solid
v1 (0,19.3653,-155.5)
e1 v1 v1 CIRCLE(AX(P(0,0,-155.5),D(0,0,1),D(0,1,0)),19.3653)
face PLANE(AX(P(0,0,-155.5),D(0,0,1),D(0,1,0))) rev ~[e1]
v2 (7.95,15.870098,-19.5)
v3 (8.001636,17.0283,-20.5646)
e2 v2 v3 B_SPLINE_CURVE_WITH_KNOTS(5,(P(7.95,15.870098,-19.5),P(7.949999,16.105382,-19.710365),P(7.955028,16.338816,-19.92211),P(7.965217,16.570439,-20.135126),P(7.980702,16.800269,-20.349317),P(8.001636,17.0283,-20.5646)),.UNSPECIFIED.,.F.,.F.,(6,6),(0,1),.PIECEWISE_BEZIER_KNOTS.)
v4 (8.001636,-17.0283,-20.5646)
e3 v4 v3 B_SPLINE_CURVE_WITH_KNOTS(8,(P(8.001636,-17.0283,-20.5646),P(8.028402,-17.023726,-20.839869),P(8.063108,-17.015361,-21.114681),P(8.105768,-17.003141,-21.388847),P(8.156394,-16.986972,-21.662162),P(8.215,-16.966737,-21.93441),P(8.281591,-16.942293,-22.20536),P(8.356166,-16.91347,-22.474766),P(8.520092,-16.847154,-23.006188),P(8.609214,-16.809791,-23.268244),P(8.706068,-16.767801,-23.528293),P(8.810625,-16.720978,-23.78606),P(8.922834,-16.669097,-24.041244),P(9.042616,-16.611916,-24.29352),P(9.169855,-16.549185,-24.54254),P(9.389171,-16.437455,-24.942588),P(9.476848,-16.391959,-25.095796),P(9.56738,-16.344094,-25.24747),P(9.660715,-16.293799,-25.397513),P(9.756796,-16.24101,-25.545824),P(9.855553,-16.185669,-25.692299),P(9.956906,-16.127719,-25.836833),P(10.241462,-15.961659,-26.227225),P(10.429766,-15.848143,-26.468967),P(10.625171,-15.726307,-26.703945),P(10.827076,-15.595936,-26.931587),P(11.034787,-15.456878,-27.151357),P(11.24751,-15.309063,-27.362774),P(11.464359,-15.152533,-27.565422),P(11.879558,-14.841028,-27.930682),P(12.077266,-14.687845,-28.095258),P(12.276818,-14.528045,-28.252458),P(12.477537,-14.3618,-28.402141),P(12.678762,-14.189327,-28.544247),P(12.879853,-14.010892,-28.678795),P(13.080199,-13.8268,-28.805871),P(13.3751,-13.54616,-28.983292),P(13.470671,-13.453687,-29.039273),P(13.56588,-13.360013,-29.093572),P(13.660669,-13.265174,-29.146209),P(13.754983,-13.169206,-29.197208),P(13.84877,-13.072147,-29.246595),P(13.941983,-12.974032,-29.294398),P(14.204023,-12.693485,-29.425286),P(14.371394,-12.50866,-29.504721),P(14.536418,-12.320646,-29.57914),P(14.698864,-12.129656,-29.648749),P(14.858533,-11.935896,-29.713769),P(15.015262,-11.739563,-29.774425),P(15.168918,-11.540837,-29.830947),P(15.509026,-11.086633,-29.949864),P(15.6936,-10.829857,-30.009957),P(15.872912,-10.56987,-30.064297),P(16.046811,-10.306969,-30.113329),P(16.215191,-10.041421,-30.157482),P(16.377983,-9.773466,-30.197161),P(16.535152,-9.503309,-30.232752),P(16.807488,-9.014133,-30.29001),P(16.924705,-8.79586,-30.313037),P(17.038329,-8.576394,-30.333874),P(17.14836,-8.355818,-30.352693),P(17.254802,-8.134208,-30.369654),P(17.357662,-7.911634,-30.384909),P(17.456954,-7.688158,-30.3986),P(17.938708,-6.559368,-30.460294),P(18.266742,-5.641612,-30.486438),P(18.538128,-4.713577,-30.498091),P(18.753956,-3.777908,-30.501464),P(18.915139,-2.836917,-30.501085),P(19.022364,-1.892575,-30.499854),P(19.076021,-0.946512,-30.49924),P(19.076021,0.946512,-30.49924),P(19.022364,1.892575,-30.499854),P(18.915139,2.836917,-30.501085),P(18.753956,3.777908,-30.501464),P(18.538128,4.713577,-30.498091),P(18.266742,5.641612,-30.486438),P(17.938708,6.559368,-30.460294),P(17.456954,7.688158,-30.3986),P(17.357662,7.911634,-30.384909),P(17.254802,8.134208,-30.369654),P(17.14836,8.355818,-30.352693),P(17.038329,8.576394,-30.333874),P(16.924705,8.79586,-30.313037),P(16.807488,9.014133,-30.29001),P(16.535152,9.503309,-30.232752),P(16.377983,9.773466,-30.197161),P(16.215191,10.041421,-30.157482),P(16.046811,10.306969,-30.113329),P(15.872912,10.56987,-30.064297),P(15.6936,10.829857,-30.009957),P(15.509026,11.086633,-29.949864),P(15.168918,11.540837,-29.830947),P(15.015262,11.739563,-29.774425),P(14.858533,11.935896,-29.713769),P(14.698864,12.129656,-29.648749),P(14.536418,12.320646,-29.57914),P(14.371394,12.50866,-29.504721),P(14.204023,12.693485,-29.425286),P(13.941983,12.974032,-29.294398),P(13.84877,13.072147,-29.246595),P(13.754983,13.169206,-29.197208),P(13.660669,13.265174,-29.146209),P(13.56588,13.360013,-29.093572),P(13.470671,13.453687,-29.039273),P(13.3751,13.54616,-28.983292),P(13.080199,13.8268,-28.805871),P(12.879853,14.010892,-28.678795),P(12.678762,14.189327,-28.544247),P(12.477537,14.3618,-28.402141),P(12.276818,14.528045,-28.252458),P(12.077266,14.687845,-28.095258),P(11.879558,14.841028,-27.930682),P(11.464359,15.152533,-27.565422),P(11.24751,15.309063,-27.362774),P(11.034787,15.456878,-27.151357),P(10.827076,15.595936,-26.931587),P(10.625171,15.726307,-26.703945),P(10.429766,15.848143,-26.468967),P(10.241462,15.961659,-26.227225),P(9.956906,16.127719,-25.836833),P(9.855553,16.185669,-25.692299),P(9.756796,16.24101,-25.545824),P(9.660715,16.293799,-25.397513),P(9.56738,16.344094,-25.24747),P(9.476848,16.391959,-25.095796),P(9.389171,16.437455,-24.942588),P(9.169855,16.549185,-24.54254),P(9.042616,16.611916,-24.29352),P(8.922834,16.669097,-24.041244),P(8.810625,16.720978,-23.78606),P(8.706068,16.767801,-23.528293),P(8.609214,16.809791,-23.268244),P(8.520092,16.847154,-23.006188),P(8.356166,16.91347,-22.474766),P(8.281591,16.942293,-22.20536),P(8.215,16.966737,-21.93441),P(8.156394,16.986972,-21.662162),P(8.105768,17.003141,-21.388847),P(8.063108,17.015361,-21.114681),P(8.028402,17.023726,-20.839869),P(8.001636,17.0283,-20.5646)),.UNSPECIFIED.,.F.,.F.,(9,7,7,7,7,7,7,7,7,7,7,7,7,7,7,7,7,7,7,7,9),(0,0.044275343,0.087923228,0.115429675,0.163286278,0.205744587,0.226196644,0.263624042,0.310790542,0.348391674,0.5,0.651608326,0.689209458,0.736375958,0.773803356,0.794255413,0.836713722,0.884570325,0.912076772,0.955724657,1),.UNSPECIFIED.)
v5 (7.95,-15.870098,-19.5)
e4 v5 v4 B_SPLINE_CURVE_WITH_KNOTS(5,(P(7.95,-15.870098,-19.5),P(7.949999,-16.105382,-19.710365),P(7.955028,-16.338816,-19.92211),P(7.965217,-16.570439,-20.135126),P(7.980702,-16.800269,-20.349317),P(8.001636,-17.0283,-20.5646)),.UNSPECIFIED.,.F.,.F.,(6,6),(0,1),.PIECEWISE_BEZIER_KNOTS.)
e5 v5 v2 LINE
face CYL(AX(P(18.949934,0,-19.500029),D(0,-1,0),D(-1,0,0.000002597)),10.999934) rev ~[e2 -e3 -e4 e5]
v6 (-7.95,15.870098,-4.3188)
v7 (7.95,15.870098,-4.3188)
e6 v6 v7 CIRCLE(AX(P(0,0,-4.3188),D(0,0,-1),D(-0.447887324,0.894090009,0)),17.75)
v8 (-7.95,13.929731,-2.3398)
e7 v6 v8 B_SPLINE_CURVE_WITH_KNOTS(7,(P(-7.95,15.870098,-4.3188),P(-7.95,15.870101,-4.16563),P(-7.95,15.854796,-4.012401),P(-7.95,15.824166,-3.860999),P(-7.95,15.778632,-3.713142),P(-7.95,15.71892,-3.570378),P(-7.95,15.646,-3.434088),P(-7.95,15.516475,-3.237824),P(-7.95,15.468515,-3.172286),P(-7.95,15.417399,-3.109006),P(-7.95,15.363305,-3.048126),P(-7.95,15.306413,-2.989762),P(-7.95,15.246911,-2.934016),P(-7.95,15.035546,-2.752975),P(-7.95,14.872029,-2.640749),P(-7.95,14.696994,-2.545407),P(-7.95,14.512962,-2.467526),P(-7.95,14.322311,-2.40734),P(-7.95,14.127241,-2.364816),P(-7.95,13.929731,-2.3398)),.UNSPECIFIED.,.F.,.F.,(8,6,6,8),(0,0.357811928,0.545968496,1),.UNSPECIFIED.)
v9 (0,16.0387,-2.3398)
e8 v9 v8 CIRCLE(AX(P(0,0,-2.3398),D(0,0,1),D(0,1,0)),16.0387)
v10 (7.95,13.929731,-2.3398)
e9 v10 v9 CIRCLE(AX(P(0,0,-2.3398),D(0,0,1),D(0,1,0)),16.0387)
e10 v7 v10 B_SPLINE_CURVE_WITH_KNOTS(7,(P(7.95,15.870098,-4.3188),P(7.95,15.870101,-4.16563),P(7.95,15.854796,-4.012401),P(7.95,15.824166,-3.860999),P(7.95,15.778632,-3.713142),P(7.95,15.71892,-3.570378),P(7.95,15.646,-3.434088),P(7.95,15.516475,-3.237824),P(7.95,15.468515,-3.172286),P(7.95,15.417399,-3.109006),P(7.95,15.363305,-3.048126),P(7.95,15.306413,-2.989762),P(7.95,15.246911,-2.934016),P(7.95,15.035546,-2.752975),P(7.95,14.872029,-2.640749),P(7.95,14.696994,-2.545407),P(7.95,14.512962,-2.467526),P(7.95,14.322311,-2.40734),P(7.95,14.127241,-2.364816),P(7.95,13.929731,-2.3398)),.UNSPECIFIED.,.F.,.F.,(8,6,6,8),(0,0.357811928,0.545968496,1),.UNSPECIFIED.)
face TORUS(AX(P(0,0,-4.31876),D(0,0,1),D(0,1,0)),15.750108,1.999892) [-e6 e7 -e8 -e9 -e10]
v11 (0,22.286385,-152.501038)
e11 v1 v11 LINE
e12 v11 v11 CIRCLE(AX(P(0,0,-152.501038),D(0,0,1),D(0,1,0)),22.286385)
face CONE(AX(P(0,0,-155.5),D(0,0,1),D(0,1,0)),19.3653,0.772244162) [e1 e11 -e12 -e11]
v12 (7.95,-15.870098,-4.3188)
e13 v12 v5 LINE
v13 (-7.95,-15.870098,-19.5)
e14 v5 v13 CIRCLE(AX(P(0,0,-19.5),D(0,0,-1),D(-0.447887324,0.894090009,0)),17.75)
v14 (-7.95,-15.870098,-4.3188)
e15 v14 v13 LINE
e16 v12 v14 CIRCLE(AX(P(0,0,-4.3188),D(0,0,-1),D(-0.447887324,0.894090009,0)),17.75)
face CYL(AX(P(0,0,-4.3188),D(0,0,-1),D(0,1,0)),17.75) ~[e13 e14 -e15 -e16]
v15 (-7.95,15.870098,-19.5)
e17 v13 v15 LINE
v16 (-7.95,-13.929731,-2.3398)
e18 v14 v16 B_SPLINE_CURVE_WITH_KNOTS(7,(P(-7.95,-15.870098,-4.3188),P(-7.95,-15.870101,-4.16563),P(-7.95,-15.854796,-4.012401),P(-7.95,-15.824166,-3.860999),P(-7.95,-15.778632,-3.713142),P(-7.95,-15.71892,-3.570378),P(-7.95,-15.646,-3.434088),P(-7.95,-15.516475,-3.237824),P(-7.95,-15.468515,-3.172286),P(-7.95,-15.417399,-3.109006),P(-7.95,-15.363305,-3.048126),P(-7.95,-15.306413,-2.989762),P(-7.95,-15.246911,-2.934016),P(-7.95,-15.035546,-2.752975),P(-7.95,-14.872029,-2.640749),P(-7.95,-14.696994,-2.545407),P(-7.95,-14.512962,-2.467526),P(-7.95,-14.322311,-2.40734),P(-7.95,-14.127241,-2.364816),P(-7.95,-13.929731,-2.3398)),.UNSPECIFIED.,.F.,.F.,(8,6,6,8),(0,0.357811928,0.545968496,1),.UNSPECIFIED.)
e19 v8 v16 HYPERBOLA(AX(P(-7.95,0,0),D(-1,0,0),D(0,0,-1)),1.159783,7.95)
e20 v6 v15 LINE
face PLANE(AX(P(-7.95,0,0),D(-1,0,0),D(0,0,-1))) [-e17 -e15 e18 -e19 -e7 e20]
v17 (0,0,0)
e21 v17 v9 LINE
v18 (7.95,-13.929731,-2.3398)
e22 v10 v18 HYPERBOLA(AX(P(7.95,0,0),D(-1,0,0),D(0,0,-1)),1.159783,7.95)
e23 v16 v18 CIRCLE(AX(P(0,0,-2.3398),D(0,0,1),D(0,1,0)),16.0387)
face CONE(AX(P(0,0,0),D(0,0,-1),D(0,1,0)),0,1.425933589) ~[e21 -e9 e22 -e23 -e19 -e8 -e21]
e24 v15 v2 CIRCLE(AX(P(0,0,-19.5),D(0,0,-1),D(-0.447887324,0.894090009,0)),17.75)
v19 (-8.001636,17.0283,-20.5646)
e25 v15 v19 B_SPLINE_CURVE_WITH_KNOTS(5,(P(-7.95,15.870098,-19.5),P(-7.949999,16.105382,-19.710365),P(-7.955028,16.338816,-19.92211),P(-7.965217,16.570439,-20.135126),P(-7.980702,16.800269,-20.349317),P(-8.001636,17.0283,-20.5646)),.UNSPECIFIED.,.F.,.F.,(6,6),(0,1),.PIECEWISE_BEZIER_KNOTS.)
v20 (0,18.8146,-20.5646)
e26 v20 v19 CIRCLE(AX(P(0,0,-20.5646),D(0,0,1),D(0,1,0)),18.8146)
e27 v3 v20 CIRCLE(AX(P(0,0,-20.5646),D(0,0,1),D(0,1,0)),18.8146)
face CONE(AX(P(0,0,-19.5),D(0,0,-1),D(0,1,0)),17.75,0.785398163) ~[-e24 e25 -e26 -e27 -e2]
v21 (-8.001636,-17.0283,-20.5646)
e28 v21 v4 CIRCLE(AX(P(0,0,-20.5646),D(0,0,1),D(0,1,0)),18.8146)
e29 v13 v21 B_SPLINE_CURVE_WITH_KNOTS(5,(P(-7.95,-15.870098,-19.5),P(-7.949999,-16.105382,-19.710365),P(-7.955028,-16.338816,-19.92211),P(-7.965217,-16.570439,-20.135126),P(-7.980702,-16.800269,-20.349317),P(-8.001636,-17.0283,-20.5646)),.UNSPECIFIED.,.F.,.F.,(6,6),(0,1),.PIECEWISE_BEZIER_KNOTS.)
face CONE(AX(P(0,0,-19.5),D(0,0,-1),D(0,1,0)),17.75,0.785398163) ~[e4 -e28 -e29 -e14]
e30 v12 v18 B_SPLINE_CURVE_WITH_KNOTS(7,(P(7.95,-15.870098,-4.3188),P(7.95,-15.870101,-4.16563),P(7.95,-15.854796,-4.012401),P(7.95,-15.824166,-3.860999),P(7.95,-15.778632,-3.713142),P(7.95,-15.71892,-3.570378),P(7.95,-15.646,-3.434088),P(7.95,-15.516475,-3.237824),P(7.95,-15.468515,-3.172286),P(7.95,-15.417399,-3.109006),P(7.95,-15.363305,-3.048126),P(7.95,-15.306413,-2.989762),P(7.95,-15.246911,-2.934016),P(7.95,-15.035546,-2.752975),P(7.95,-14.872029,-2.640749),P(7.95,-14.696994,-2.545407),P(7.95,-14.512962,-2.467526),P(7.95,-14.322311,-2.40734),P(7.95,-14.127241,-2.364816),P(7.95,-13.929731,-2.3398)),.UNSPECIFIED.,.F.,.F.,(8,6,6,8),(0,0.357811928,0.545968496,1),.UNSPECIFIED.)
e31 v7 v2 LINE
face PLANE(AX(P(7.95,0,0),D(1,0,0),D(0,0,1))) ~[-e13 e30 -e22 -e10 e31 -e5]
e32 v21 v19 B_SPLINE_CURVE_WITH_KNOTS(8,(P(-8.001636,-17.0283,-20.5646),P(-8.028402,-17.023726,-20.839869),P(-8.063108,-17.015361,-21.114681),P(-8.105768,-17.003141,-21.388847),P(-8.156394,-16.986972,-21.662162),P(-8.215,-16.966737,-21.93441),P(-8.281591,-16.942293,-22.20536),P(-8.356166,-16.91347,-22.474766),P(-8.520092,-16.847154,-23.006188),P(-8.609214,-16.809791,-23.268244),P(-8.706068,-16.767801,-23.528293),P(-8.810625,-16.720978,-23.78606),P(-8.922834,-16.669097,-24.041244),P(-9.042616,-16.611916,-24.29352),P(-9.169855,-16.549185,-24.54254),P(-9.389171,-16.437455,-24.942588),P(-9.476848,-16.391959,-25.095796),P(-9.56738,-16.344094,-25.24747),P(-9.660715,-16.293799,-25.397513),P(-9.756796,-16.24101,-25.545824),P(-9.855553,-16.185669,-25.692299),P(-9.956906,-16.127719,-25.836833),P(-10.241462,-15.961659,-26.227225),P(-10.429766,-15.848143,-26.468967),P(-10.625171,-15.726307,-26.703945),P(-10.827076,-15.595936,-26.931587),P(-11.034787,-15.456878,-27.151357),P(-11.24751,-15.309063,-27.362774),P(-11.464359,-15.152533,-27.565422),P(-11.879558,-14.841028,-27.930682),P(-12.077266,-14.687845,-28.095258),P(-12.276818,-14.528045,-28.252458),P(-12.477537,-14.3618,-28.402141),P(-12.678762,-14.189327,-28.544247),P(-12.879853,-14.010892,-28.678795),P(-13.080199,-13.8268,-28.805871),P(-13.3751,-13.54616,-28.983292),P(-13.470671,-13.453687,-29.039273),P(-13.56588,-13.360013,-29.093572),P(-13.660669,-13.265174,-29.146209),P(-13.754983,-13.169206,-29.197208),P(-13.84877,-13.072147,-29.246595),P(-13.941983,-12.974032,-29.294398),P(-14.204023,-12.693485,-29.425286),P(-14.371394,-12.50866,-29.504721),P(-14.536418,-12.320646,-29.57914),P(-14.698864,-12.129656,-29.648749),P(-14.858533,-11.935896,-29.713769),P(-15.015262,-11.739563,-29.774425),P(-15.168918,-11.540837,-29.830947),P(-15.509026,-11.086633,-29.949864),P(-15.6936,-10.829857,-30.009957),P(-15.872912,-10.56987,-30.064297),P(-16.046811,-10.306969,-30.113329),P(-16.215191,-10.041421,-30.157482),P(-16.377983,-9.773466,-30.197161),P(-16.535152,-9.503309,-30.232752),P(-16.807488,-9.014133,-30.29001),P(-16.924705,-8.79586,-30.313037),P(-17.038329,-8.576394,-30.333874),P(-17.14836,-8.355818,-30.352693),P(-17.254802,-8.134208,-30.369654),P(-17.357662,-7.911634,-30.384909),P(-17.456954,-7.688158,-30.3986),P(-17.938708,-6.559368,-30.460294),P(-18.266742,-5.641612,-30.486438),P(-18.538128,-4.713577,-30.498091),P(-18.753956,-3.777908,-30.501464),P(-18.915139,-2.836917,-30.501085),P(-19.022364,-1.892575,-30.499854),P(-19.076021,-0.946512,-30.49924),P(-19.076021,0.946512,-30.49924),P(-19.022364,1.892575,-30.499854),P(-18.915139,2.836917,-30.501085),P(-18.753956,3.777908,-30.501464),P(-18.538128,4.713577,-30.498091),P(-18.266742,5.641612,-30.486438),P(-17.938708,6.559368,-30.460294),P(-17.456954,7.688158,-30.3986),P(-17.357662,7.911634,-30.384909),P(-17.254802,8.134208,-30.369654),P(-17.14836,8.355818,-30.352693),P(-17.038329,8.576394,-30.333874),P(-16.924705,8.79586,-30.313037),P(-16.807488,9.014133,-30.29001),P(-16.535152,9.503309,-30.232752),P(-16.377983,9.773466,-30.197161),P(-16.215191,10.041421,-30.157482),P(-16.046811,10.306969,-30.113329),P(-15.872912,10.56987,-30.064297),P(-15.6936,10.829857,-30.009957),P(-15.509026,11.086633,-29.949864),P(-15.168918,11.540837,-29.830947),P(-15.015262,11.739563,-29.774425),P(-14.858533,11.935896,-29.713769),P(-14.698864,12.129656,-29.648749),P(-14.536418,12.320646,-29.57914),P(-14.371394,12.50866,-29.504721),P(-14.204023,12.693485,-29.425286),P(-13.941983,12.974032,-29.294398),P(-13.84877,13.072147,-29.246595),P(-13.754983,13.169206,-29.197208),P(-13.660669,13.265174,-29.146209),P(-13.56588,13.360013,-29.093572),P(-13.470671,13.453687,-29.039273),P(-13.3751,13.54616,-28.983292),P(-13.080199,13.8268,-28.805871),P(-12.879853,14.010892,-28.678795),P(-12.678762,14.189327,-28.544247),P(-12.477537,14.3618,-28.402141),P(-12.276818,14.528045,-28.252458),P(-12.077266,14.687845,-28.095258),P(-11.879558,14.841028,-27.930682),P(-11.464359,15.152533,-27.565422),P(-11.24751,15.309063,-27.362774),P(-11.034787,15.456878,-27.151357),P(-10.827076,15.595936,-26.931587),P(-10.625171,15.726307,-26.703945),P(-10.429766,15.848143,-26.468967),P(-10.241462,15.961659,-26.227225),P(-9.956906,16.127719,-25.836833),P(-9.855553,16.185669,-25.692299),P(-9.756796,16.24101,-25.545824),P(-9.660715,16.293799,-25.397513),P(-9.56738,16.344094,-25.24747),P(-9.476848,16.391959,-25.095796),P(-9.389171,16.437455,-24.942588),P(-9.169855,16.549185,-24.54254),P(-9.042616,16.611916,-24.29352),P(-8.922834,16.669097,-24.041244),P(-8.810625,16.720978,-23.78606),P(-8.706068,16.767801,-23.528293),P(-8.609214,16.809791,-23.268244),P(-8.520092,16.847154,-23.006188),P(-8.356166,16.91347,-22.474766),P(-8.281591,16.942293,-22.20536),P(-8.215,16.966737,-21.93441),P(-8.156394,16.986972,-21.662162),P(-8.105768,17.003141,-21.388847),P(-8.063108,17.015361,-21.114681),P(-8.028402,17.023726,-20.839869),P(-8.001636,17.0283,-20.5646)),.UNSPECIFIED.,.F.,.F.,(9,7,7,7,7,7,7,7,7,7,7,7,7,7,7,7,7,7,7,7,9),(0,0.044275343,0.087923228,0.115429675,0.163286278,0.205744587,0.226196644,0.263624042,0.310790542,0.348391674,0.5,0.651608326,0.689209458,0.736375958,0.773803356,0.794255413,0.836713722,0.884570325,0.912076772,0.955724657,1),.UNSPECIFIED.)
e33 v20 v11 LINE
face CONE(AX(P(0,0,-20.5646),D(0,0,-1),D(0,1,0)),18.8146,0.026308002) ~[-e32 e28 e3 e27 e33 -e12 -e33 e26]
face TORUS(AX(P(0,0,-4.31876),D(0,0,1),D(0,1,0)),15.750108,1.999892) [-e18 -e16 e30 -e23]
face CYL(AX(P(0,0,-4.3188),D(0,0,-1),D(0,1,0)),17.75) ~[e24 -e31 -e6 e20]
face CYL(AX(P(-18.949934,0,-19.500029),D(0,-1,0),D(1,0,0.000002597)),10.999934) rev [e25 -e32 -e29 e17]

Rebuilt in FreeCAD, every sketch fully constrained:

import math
import FreeCAD as App
import Part
import Sketcher

V = App.Vector
Q = App.Units.Quantity


def edges_at(feature, points):
    """Names of the edges that pass closest to the given points."""
    edges = feature.Shape.Edges
    near = lambda p: min(range(len(edges)), key=lambda i: edges[i].distToShape(Part.Vertex(*p))[0])
    return sorted({f"Edge{near(p) + 1}" for p in points})

doc = App.newDocument("Part")
params = doc.addObject("Spreadsheet::Sheet", "Params")
for row, (alias, value) in enumerate([
    ("sketch1_radius", "2 mm"),
    ("sketch1_height", "155.5 mm"),
    ("revolution_angle", "360 deg"),
    ("chamfer_size", "3 mm"),
    ("sketch2_radius", "11 mm"),
    ("sketch2_height", "19.5 mm"),
], start=1):
    params.set(f"A{row}", alias)
    params.set(f"B{row}", "=" + value)
    params.setAlias(f"B{row}", alias)

body = doc.addObject("PartDesign::Body", "Body")

sketch1 = doc.addObject("Sketcher::SketchObject", "Sketch")
body.addObject(sketch1)
sketch1.AttachmentSupport = (doc.YZ_Plane, [""])
sketch1.MapMode = "FlatFace"
sketch1.addGeometry([
    Part.LineSegment(V(0, -155.5, 0), V(22.4, -155.5, 0)),
    Part.LineSegment(V(22.4, -155.5, 0), V(18.8, -20.6, 0)),
    Part.LineSegment(V(18.8, -20.6, 0), V(17.8, -19.5, 0)),
    Part.LineSegment(V(17.8, -19.5, 0), V(17.8, -4.3, 0)),
    Part.ArcOfCircle(Part.Circle(V(15.8, -4.3, 0), V(0, 0, 1), 2), math.radians(0), math.radians(82)),
    Part.LineSegment(V(16, -2.3, 0), V(0, 0, 0)),
    Part.LineSegment(V(0, 0, 0), V(0, -155.5, 0)),
], False)
sketch1.addConstraint([
    Sketcher.Constraint("Coincident", 0, 2, 1, 1),
    Sketcher.Constraint("Coincident", 1, 2, 2, 1),
    Sketcher.Constraint("Coincident", 2, 2, 3, 1),
    Sketcher.Constraint("Tangent", 3, 2, 4, 1),
    Sketcher.Constraint("Tangent", 4, 2, 5, 1),
    Sketcher.Constraint("Coincident", 5, 2, 6, 1),
    Sketcher.Constraint("Coincident", 6, 2, 0, 1),
    Sketcher.Constraint("Horizontal", 0),
    Sketcher.Constraint("Vertical", 3),
    Sketcher.Constraint("Vertical", 6),
    Sketcher.Constraint("Coincident", 5, 2, -1, 1),
    Sketcher.Constraint("Radius", 4, Q("2 mm")),
    Sketcher.Constraint("DistanceY", 6, 2, 6, 1, Q("155.5 mm")),
    Sketcher.Constraint("DistanceY", 2, 2, -1, 1, Q("19.5 mm")),
    Sketcher.Constraint("Angle", 2, Q("135 deg")),
    Sketcher.Constraint("Angle", 5, Q("171.7 deg")),
    Sketcher.Constraint("DistanceX", -1, 1, 4, 3, Q("15.75 mm")),
    Sketcher.Constraint("Distance", 1, Q("134.982 mm")),
    Sketcher.Constraint("DistanceX", 0, 1, 0, 2, Q("22.3653 mm")),
])
sketch1.setExpression("Constraints[11]", "Params.sketch1_radius")
sketch1.setExpression("Constraints[12]", "Params.sketch1_height")
revolution = doc.addObject("PartDesign::Revolution", "Revolution")
body.addObject(revolution)
revolution.Profile = sketch1
revolution.ReferenceAxis = (sketch1, ["V_Axis"])
revolution.setExpression("Angle", "Params.revolution_angle")
doc.recompute()

chamfer = doc.addObject("PartDesign::Chamfer", "Chamfer")
body.addObject(chamfer)
chamfer.Base = (revolution, edges_at(revolution, [(0, -22.365, -155.5)]))
chamfer.setExpression("Size", "Params.chamfer_size")

sketch2 = doc.addObject("Sketcher::SketchObject", "Sketch001")
body.addObject(sketch2)
sketch2.AttachmentSupport = (doc.XZ_Plane, [""])
sketch2.MapMode = "FlatFace"
sketch2.addGeometry([
    Part.LineSegment(V(-20, 0, 0), V(-8, 0, 0)),
    Part.LineSegment(V(-8, 0, 0), V(-8, -20, 0)),
    Part.ArcOfCircle(Part.Circle(V(-19, -20, 0), V(0, 0, 1), 11), math.radians(-93), math.radians(0)),
    Part.LineSegment(V(-20, -30, 0), V(-20, 0, 0)),
], False)
sketch2.addConstraint([
    Sketcher.Constraint("Coincident", 0, 2, 1, 1),
    Sketcher.Constraint("Tangent", 1, 2, 2, 2),
    Sketcher.Constraint("Coincident", 2, 1, 3, 1),
    Sketcher.Constraint("Coincident", 3, 2, 0, 1),
    Sketcher.Constraint("Horizontal", 0),
    Sketcher.Constraint("Vertical", 1),
    Sketcher.Constraint("Vertical", 3),
    Sketcher.Constraint("PointOnObject", 0, 2, -1),
    Sketcher.Constraint("Radius", 2, Q("11 mm")),
    Sketcher.Constraint("DistanceY", 1, 2, 1, 1, Q("19.5 mm")),
    Sketcher.Constraint("DistanceX", 2, 3, -1, 1, Q("18.95 mm")),
    Sketcher.Constraint("DistanceX", 0, 1, 0, 2, Q("11.6195 mm")),
])
sketch2.setExpression("Constraints[8]", "Params.sketch2_radius")
sketch2.setExpression("Constraints[9]", "Params.sketch2_height")
pocket1 = doc.addObject("PartDesign::Pocket", "Pocket")
body.addObject(pocket1)
pocket1.Profile = sketch2
pocket1.Type = "ThroughAll"
pocket1.Midplane = True
doc.recompute()

mirrored = doc.addObject("PartDesign::Mirrored", "Mirrored")
body.addObject(mirrored)
mirrored.Originals = [pocket1]
mirrored.MirrorPlane = (doc.YZ_Plane, [""])
body.Tip = mirrored

doc.recompute()
